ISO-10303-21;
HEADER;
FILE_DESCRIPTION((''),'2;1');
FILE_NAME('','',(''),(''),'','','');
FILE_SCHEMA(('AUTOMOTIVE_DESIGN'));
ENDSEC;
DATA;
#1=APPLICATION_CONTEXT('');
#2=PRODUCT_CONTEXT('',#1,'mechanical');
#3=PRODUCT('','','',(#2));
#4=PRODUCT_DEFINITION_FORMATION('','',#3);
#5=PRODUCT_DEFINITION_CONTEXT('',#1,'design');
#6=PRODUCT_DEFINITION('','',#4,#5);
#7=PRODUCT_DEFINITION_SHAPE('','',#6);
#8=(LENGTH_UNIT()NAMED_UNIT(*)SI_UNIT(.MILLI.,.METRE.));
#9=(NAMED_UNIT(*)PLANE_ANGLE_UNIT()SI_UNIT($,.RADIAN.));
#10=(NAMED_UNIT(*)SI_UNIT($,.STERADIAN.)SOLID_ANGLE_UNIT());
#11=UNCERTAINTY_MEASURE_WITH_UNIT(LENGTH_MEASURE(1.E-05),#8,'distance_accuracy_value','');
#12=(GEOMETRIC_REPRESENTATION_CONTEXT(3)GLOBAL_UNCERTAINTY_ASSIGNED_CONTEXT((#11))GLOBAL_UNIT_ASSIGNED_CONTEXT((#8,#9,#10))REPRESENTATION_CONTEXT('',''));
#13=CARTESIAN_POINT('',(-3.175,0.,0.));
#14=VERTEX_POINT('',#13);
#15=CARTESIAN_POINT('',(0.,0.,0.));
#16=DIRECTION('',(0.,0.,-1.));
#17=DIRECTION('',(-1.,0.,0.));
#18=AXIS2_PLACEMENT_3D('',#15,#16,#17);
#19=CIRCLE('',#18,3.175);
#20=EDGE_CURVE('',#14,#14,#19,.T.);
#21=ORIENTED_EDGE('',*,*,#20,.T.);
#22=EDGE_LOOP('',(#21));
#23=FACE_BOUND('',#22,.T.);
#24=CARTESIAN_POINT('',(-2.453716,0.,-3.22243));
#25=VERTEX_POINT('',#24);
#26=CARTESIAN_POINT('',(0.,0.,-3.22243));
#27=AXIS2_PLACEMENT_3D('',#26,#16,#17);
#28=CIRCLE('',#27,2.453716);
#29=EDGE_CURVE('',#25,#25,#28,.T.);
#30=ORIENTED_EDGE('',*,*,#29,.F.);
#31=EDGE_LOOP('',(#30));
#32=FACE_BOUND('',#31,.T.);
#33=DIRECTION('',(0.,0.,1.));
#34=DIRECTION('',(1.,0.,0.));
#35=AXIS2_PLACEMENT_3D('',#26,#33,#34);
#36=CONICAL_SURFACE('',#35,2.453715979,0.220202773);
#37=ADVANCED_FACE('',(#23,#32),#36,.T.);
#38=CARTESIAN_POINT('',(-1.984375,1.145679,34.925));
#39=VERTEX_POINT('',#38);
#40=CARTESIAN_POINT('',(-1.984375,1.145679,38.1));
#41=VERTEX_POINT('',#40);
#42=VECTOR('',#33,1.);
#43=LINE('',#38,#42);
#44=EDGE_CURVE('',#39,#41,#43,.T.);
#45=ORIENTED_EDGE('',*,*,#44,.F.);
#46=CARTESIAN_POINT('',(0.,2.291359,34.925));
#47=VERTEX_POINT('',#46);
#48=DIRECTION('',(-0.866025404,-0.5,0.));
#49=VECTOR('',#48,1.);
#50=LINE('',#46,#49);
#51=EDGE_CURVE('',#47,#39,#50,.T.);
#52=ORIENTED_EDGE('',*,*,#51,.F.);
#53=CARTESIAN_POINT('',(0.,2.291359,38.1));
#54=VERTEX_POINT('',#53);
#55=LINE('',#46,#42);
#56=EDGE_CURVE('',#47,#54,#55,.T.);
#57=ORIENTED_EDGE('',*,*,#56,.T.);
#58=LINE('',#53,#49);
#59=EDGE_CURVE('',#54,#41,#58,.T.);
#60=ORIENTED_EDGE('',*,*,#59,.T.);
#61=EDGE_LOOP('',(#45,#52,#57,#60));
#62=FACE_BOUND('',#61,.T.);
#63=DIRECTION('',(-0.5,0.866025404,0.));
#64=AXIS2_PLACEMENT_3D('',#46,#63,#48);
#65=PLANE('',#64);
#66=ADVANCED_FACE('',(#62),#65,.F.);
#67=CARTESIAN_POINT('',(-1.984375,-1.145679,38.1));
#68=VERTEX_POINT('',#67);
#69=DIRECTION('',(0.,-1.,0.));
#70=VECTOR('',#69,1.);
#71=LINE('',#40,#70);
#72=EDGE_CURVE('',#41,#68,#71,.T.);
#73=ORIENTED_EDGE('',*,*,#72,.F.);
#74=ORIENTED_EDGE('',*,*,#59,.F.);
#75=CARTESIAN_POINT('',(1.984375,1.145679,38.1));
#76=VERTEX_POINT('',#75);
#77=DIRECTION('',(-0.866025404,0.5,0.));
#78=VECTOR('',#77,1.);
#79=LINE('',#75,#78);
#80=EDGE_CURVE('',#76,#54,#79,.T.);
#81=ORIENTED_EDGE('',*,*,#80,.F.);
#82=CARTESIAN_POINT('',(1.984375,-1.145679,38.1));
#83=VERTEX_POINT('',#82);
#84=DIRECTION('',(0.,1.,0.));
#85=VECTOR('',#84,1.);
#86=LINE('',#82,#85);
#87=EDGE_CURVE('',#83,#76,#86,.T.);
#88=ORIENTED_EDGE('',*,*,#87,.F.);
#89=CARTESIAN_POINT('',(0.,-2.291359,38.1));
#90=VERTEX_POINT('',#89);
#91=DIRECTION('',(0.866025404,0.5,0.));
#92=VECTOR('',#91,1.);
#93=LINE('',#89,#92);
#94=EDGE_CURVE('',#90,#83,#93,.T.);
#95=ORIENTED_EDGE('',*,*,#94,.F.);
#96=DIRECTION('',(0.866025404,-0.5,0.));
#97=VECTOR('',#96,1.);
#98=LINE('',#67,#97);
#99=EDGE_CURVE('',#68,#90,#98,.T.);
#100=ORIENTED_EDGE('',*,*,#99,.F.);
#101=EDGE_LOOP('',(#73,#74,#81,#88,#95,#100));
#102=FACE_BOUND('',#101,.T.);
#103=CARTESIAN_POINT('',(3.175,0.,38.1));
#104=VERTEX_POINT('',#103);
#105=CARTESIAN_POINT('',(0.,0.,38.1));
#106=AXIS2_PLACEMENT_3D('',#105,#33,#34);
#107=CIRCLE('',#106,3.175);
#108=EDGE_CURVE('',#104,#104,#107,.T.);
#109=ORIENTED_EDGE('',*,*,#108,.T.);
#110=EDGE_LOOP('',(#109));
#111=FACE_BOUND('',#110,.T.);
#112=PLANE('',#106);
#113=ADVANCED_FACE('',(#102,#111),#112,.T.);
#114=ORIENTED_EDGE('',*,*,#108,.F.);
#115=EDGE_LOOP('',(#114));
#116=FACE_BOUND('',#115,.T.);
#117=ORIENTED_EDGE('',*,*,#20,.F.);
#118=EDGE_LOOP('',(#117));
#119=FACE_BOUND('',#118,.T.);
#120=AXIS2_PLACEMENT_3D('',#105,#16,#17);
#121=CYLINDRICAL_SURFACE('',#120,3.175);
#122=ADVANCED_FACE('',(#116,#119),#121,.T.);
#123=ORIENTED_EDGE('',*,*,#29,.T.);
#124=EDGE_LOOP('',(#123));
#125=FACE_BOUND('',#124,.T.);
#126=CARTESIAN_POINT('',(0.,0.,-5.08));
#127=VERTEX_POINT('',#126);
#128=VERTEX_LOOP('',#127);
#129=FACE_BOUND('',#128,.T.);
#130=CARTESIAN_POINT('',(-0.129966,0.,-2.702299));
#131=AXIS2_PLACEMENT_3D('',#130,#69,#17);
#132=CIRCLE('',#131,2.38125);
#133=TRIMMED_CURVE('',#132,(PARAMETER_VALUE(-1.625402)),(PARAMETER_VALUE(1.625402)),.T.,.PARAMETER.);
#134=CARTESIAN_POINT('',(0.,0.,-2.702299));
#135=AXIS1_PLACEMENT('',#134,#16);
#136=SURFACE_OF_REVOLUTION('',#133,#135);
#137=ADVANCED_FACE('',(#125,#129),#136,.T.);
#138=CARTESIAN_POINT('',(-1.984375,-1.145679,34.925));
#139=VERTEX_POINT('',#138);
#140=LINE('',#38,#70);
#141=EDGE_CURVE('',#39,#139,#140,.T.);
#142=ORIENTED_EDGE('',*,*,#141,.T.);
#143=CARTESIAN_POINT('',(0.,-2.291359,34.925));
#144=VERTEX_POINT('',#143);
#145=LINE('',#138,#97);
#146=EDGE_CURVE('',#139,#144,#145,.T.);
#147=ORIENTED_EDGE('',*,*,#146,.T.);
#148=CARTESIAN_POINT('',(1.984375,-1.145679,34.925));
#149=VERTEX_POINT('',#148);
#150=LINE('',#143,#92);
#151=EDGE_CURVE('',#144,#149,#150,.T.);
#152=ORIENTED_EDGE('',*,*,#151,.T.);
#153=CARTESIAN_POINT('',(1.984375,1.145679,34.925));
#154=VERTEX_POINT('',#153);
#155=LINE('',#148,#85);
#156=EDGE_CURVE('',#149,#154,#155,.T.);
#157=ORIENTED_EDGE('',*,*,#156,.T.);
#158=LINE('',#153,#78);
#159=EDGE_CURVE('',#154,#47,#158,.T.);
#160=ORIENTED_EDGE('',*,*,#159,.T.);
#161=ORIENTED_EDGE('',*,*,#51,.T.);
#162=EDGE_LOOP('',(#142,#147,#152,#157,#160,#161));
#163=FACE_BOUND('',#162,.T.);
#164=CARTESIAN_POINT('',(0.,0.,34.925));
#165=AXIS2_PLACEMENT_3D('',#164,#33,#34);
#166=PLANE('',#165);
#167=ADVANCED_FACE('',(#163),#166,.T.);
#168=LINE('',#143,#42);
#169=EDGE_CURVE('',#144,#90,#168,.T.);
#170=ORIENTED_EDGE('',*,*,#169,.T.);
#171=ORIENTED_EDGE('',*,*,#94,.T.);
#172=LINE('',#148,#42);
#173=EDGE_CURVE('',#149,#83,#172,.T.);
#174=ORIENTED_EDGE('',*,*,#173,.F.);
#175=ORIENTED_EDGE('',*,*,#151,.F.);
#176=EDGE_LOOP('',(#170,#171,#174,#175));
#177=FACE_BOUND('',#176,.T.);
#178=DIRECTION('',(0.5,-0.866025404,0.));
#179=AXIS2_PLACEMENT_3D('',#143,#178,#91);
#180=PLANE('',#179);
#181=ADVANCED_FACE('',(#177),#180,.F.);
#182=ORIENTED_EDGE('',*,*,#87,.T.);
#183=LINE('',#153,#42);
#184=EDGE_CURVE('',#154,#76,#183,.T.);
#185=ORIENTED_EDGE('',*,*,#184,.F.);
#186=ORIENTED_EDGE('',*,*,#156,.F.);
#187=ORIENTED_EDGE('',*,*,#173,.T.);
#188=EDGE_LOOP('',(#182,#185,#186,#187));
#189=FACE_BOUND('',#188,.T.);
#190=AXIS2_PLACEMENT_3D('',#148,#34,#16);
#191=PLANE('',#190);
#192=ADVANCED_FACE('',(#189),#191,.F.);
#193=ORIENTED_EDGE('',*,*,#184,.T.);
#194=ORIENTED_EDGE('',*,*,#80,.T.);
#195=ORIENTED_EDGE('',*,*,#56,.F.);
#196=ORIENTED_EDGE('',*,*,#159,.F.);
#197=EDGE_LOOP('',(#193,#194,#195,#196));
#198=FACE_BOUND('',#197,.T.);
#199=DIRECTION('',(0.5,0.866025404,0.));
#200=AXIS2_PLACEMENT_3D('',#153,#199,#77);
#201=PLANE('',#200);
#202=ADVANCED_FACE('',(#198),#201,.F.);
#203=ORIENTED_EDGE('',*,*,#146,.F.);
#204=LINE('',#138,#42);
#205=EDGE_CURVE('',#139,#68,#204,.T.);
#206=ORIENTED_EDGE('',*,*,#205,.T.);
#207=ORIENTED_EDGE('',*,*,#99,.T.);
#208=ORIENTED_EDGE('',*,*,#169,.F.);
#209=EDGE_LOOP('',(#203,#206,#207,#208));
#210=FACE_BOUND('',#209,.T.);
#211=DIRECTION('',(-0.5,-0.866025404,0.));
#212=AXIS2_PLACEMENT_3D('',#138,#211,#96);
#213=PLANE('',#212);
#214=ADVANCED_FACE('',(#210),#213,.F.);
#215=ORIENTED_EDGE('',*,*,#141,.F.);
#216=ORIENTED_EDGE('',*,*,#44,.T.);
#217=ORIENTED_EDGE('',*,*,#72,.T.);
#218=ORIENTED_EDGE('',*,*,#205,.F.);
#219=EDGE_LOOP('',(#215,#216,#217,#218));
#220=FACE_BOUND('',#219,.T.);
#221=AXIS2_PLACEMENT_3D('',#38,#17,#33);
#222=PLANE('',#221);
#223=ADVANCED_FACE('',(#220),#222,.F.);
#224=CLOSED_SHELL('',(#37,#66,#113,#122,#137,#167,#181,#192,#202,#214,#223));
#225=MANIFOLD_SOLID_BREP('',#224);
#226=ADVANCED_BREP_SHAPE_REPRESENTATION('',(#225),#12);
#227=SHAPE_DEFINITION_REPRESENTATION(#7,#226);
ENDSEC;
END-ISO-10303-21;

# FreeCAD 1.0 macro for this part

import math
import FreeCAD as App
import Part
import Sketcher
from FreeCAD import Vector
Q = App.Units.Quantity

doc = App.newDocument("Part")
params = doc.addObject("Spreadsheet::Sheet", "Params")
for row, (alias, value) in enumerate([
    ("sketch1_diameter", "0.25 in"),
    ("pad1_length", "1.5 in"),
    ("pocket1_length", "0.125 in"),
    ("sketch3_height", "0.2 in"),
    ("sketch3_radius", "0.09375 in"),
    ("sketch3_width", "0.125 in"),
    ("revolution_angle", "360 deg"),
], start=1):
    params.set(f"A{row}", alias)
    params.set(f"B{row}", "=" + value)
    params.setAlias(f"B{row}", alias)

body = doc.addObject("PartDesign::Body", "Body")

sketch1 = body.newObject("Sketcher::SketchObject", "Sketch")
sketch1.AttachmentSupport = (doc.getObject("XY_Plane"), [""])
sketch1.MapMode = "FlatFace"
sketch1.addGeometry(Part.Circle(Vector(0, 0, 0), Vector(0, 0, 1), 3.2), False)
sketch1.addConstraint([
    Sketcher.Constraint("Coincident", 0, 3, -1, 1),
    Sketcher.Constraint("Diameter", 0, Q("0.25 in")),
])
sketch1.setExpression("Constraints[1]", "Params.sketch1_diameter")
pad1 = body.newObject("PartDesign::Pad", "Pad")
pad1.Profile = sketch1
pad1.setExpression("Length", "Params.pad1_length")

sketch2 = body.newObject("Sketcher::SketchObject", "Sketch001")
sketch2.AttachmentSupport = (doc.getObject("XY_Plane"), [""])
sketch2.MapMode = "FlatFace"
sketch2.AttachmentOffset = App.Placement(Vector(0, 0, 1.5 * 25.4), App.Rotation())
sketch2.addGeometry([
    Part.LineSegment(Vector(0, 2.3, 0), Vector(-2, 1.1, 0)),
    Part.LineSegment(Vector(-2, 1.1, 0), Vector(-2, -1.1, 0)),
    Part.LineSegment(Vector(-2, -1.1, 0), Vector(0, -2.3, 0)),
    Part.LineSegment(Vector(0, -2.3, 0), Vector(2, -1.1, 0)),
    Part.LineSegment(Vector(2, -1.1, 0), Vector(2, 1.1, 0)),
    Part.LineSegment(Vector(2, 1.1, 0), Vector(0, 2.3, 0)),
], False)
sketch2.addConstraint([
    Sketcher.Constraint("Coincident", 0, 2, 1, 1),
    Sketcher.Constraint("Coincident", 1, 2, 2, 1),
    Sketcher.Constraint("Coincident", 2, 2, 3, 1),
    Sketcher.Constraint("Coincident", 3, 2, 4, 1),
    Sketcher.Constraint("Coincident", 4, 2, 5, 1),
    Sketcher.Constraint("Coincident", 5, 2, 0, 1),
    Sketcher.Constraint("Vertical", 1),
    Sketcher.Constraint("Vertical", 4),
    Sketcher.Constraint("Symmetric", 0, 2, 3, 2, -1, 1),
    Sketcher.Constraint("Symmetric", 2, 2, 5, 2, -1, 1),
    Sketcher.Constraint("PointOnObject", 2, 2, -2),
    Sketcher.Constraint("Parallel", 2, 5),
    Sketcher.Constraint("Horizontal", 1, 2, 3, 2),
    Sketcher.Constraint("Angle", 0, Q("-150 deg")),
    Sketcher.Constraint("DistanceX", 0, 2, -1, 1, Q("0.078125 in")),
    Sketcher.Constraint("DistanceY", 1, 2, 1, 1, Q("2.291359 mm")),
])
pocket1 = body.newObject("PartDesign::Pocket", "Pocket")
pocket1.Profile = sketch2
pocket1.setExpression("Length", "Params.pocket1_length")

sketch3 = body.newObject("Sketcher::SketchObject", "Sketch002")
sketch3.AttachmentSupport = (doc.getObject("XZ_Plane"), [""])
sketch3.MapMode = "FlatFace"
sketch3.addGeometry([
    Part.LineSegment(Vector(-2.5, -3.2, 0), Vector(-3.2, 0, 0)),
    Part.LineSegment(Vector(-3.2, 0, 0), Vector(0, 0, 0)),
    Part.LineSegment(Vector(0, 0, 0), Vector(0, -5.1, 0)),
    Part.ArcOfCircle(Part.Circle(Vector(-0.1, -2.7, 0), Vector(0, 0, 1), 2.4), math.radians(-167), math.radians(-87)),
], False)
sketch3.addConstraint([
    Sketcher.Constraint("Coincident", 0, 2, 1, 1),
    Sketcher.Constraint("Coincident", 1, 2, 2, 1),
    Sketcher.Constraint("Coincident", 2, 2, 3, 2),
    Sketcher.Constraint("Tangent", 3, 1, 0, 1),
    Sketcher.Constraint("Horizontal", 1),
    Sketcher.Constraint("Vertical", 2),
    Sketcher.Constraint("Coincident", 1, 2, -1, 1),
    Sketcher.Constraint("DistanceY", 2, 2, 2, 1, Q("0.2 in")),
    Sketcher.Constraint("Radius", 3, Q("0.09375 in")),
    Sketcher.Constraint("DistanceX", 1, 1, 1, 2, Q("0.125 in")),
    Sketcher.Constraint("DistanceY", 3, 3, -1, 1, Q("2.702299 mm")),
])
sketch3.setExpression("Constraints[7]", "Params.sketch3_height")
sketch3.setExpression("Constraints[8]", "Params.sketch3_radius")
sketch3.setExpression("Constraints[9]", "Params.sketch3_width")
revolution = body.newObject("PartDesign::Revolution", "Revolution")
revolution.Profile = sketch3
revolution.ReferenceAxis = (sketch3, ["V_Axis"])
revolution.setExpression("Angle", "Params.revolution_angle")

doc.recompute()
